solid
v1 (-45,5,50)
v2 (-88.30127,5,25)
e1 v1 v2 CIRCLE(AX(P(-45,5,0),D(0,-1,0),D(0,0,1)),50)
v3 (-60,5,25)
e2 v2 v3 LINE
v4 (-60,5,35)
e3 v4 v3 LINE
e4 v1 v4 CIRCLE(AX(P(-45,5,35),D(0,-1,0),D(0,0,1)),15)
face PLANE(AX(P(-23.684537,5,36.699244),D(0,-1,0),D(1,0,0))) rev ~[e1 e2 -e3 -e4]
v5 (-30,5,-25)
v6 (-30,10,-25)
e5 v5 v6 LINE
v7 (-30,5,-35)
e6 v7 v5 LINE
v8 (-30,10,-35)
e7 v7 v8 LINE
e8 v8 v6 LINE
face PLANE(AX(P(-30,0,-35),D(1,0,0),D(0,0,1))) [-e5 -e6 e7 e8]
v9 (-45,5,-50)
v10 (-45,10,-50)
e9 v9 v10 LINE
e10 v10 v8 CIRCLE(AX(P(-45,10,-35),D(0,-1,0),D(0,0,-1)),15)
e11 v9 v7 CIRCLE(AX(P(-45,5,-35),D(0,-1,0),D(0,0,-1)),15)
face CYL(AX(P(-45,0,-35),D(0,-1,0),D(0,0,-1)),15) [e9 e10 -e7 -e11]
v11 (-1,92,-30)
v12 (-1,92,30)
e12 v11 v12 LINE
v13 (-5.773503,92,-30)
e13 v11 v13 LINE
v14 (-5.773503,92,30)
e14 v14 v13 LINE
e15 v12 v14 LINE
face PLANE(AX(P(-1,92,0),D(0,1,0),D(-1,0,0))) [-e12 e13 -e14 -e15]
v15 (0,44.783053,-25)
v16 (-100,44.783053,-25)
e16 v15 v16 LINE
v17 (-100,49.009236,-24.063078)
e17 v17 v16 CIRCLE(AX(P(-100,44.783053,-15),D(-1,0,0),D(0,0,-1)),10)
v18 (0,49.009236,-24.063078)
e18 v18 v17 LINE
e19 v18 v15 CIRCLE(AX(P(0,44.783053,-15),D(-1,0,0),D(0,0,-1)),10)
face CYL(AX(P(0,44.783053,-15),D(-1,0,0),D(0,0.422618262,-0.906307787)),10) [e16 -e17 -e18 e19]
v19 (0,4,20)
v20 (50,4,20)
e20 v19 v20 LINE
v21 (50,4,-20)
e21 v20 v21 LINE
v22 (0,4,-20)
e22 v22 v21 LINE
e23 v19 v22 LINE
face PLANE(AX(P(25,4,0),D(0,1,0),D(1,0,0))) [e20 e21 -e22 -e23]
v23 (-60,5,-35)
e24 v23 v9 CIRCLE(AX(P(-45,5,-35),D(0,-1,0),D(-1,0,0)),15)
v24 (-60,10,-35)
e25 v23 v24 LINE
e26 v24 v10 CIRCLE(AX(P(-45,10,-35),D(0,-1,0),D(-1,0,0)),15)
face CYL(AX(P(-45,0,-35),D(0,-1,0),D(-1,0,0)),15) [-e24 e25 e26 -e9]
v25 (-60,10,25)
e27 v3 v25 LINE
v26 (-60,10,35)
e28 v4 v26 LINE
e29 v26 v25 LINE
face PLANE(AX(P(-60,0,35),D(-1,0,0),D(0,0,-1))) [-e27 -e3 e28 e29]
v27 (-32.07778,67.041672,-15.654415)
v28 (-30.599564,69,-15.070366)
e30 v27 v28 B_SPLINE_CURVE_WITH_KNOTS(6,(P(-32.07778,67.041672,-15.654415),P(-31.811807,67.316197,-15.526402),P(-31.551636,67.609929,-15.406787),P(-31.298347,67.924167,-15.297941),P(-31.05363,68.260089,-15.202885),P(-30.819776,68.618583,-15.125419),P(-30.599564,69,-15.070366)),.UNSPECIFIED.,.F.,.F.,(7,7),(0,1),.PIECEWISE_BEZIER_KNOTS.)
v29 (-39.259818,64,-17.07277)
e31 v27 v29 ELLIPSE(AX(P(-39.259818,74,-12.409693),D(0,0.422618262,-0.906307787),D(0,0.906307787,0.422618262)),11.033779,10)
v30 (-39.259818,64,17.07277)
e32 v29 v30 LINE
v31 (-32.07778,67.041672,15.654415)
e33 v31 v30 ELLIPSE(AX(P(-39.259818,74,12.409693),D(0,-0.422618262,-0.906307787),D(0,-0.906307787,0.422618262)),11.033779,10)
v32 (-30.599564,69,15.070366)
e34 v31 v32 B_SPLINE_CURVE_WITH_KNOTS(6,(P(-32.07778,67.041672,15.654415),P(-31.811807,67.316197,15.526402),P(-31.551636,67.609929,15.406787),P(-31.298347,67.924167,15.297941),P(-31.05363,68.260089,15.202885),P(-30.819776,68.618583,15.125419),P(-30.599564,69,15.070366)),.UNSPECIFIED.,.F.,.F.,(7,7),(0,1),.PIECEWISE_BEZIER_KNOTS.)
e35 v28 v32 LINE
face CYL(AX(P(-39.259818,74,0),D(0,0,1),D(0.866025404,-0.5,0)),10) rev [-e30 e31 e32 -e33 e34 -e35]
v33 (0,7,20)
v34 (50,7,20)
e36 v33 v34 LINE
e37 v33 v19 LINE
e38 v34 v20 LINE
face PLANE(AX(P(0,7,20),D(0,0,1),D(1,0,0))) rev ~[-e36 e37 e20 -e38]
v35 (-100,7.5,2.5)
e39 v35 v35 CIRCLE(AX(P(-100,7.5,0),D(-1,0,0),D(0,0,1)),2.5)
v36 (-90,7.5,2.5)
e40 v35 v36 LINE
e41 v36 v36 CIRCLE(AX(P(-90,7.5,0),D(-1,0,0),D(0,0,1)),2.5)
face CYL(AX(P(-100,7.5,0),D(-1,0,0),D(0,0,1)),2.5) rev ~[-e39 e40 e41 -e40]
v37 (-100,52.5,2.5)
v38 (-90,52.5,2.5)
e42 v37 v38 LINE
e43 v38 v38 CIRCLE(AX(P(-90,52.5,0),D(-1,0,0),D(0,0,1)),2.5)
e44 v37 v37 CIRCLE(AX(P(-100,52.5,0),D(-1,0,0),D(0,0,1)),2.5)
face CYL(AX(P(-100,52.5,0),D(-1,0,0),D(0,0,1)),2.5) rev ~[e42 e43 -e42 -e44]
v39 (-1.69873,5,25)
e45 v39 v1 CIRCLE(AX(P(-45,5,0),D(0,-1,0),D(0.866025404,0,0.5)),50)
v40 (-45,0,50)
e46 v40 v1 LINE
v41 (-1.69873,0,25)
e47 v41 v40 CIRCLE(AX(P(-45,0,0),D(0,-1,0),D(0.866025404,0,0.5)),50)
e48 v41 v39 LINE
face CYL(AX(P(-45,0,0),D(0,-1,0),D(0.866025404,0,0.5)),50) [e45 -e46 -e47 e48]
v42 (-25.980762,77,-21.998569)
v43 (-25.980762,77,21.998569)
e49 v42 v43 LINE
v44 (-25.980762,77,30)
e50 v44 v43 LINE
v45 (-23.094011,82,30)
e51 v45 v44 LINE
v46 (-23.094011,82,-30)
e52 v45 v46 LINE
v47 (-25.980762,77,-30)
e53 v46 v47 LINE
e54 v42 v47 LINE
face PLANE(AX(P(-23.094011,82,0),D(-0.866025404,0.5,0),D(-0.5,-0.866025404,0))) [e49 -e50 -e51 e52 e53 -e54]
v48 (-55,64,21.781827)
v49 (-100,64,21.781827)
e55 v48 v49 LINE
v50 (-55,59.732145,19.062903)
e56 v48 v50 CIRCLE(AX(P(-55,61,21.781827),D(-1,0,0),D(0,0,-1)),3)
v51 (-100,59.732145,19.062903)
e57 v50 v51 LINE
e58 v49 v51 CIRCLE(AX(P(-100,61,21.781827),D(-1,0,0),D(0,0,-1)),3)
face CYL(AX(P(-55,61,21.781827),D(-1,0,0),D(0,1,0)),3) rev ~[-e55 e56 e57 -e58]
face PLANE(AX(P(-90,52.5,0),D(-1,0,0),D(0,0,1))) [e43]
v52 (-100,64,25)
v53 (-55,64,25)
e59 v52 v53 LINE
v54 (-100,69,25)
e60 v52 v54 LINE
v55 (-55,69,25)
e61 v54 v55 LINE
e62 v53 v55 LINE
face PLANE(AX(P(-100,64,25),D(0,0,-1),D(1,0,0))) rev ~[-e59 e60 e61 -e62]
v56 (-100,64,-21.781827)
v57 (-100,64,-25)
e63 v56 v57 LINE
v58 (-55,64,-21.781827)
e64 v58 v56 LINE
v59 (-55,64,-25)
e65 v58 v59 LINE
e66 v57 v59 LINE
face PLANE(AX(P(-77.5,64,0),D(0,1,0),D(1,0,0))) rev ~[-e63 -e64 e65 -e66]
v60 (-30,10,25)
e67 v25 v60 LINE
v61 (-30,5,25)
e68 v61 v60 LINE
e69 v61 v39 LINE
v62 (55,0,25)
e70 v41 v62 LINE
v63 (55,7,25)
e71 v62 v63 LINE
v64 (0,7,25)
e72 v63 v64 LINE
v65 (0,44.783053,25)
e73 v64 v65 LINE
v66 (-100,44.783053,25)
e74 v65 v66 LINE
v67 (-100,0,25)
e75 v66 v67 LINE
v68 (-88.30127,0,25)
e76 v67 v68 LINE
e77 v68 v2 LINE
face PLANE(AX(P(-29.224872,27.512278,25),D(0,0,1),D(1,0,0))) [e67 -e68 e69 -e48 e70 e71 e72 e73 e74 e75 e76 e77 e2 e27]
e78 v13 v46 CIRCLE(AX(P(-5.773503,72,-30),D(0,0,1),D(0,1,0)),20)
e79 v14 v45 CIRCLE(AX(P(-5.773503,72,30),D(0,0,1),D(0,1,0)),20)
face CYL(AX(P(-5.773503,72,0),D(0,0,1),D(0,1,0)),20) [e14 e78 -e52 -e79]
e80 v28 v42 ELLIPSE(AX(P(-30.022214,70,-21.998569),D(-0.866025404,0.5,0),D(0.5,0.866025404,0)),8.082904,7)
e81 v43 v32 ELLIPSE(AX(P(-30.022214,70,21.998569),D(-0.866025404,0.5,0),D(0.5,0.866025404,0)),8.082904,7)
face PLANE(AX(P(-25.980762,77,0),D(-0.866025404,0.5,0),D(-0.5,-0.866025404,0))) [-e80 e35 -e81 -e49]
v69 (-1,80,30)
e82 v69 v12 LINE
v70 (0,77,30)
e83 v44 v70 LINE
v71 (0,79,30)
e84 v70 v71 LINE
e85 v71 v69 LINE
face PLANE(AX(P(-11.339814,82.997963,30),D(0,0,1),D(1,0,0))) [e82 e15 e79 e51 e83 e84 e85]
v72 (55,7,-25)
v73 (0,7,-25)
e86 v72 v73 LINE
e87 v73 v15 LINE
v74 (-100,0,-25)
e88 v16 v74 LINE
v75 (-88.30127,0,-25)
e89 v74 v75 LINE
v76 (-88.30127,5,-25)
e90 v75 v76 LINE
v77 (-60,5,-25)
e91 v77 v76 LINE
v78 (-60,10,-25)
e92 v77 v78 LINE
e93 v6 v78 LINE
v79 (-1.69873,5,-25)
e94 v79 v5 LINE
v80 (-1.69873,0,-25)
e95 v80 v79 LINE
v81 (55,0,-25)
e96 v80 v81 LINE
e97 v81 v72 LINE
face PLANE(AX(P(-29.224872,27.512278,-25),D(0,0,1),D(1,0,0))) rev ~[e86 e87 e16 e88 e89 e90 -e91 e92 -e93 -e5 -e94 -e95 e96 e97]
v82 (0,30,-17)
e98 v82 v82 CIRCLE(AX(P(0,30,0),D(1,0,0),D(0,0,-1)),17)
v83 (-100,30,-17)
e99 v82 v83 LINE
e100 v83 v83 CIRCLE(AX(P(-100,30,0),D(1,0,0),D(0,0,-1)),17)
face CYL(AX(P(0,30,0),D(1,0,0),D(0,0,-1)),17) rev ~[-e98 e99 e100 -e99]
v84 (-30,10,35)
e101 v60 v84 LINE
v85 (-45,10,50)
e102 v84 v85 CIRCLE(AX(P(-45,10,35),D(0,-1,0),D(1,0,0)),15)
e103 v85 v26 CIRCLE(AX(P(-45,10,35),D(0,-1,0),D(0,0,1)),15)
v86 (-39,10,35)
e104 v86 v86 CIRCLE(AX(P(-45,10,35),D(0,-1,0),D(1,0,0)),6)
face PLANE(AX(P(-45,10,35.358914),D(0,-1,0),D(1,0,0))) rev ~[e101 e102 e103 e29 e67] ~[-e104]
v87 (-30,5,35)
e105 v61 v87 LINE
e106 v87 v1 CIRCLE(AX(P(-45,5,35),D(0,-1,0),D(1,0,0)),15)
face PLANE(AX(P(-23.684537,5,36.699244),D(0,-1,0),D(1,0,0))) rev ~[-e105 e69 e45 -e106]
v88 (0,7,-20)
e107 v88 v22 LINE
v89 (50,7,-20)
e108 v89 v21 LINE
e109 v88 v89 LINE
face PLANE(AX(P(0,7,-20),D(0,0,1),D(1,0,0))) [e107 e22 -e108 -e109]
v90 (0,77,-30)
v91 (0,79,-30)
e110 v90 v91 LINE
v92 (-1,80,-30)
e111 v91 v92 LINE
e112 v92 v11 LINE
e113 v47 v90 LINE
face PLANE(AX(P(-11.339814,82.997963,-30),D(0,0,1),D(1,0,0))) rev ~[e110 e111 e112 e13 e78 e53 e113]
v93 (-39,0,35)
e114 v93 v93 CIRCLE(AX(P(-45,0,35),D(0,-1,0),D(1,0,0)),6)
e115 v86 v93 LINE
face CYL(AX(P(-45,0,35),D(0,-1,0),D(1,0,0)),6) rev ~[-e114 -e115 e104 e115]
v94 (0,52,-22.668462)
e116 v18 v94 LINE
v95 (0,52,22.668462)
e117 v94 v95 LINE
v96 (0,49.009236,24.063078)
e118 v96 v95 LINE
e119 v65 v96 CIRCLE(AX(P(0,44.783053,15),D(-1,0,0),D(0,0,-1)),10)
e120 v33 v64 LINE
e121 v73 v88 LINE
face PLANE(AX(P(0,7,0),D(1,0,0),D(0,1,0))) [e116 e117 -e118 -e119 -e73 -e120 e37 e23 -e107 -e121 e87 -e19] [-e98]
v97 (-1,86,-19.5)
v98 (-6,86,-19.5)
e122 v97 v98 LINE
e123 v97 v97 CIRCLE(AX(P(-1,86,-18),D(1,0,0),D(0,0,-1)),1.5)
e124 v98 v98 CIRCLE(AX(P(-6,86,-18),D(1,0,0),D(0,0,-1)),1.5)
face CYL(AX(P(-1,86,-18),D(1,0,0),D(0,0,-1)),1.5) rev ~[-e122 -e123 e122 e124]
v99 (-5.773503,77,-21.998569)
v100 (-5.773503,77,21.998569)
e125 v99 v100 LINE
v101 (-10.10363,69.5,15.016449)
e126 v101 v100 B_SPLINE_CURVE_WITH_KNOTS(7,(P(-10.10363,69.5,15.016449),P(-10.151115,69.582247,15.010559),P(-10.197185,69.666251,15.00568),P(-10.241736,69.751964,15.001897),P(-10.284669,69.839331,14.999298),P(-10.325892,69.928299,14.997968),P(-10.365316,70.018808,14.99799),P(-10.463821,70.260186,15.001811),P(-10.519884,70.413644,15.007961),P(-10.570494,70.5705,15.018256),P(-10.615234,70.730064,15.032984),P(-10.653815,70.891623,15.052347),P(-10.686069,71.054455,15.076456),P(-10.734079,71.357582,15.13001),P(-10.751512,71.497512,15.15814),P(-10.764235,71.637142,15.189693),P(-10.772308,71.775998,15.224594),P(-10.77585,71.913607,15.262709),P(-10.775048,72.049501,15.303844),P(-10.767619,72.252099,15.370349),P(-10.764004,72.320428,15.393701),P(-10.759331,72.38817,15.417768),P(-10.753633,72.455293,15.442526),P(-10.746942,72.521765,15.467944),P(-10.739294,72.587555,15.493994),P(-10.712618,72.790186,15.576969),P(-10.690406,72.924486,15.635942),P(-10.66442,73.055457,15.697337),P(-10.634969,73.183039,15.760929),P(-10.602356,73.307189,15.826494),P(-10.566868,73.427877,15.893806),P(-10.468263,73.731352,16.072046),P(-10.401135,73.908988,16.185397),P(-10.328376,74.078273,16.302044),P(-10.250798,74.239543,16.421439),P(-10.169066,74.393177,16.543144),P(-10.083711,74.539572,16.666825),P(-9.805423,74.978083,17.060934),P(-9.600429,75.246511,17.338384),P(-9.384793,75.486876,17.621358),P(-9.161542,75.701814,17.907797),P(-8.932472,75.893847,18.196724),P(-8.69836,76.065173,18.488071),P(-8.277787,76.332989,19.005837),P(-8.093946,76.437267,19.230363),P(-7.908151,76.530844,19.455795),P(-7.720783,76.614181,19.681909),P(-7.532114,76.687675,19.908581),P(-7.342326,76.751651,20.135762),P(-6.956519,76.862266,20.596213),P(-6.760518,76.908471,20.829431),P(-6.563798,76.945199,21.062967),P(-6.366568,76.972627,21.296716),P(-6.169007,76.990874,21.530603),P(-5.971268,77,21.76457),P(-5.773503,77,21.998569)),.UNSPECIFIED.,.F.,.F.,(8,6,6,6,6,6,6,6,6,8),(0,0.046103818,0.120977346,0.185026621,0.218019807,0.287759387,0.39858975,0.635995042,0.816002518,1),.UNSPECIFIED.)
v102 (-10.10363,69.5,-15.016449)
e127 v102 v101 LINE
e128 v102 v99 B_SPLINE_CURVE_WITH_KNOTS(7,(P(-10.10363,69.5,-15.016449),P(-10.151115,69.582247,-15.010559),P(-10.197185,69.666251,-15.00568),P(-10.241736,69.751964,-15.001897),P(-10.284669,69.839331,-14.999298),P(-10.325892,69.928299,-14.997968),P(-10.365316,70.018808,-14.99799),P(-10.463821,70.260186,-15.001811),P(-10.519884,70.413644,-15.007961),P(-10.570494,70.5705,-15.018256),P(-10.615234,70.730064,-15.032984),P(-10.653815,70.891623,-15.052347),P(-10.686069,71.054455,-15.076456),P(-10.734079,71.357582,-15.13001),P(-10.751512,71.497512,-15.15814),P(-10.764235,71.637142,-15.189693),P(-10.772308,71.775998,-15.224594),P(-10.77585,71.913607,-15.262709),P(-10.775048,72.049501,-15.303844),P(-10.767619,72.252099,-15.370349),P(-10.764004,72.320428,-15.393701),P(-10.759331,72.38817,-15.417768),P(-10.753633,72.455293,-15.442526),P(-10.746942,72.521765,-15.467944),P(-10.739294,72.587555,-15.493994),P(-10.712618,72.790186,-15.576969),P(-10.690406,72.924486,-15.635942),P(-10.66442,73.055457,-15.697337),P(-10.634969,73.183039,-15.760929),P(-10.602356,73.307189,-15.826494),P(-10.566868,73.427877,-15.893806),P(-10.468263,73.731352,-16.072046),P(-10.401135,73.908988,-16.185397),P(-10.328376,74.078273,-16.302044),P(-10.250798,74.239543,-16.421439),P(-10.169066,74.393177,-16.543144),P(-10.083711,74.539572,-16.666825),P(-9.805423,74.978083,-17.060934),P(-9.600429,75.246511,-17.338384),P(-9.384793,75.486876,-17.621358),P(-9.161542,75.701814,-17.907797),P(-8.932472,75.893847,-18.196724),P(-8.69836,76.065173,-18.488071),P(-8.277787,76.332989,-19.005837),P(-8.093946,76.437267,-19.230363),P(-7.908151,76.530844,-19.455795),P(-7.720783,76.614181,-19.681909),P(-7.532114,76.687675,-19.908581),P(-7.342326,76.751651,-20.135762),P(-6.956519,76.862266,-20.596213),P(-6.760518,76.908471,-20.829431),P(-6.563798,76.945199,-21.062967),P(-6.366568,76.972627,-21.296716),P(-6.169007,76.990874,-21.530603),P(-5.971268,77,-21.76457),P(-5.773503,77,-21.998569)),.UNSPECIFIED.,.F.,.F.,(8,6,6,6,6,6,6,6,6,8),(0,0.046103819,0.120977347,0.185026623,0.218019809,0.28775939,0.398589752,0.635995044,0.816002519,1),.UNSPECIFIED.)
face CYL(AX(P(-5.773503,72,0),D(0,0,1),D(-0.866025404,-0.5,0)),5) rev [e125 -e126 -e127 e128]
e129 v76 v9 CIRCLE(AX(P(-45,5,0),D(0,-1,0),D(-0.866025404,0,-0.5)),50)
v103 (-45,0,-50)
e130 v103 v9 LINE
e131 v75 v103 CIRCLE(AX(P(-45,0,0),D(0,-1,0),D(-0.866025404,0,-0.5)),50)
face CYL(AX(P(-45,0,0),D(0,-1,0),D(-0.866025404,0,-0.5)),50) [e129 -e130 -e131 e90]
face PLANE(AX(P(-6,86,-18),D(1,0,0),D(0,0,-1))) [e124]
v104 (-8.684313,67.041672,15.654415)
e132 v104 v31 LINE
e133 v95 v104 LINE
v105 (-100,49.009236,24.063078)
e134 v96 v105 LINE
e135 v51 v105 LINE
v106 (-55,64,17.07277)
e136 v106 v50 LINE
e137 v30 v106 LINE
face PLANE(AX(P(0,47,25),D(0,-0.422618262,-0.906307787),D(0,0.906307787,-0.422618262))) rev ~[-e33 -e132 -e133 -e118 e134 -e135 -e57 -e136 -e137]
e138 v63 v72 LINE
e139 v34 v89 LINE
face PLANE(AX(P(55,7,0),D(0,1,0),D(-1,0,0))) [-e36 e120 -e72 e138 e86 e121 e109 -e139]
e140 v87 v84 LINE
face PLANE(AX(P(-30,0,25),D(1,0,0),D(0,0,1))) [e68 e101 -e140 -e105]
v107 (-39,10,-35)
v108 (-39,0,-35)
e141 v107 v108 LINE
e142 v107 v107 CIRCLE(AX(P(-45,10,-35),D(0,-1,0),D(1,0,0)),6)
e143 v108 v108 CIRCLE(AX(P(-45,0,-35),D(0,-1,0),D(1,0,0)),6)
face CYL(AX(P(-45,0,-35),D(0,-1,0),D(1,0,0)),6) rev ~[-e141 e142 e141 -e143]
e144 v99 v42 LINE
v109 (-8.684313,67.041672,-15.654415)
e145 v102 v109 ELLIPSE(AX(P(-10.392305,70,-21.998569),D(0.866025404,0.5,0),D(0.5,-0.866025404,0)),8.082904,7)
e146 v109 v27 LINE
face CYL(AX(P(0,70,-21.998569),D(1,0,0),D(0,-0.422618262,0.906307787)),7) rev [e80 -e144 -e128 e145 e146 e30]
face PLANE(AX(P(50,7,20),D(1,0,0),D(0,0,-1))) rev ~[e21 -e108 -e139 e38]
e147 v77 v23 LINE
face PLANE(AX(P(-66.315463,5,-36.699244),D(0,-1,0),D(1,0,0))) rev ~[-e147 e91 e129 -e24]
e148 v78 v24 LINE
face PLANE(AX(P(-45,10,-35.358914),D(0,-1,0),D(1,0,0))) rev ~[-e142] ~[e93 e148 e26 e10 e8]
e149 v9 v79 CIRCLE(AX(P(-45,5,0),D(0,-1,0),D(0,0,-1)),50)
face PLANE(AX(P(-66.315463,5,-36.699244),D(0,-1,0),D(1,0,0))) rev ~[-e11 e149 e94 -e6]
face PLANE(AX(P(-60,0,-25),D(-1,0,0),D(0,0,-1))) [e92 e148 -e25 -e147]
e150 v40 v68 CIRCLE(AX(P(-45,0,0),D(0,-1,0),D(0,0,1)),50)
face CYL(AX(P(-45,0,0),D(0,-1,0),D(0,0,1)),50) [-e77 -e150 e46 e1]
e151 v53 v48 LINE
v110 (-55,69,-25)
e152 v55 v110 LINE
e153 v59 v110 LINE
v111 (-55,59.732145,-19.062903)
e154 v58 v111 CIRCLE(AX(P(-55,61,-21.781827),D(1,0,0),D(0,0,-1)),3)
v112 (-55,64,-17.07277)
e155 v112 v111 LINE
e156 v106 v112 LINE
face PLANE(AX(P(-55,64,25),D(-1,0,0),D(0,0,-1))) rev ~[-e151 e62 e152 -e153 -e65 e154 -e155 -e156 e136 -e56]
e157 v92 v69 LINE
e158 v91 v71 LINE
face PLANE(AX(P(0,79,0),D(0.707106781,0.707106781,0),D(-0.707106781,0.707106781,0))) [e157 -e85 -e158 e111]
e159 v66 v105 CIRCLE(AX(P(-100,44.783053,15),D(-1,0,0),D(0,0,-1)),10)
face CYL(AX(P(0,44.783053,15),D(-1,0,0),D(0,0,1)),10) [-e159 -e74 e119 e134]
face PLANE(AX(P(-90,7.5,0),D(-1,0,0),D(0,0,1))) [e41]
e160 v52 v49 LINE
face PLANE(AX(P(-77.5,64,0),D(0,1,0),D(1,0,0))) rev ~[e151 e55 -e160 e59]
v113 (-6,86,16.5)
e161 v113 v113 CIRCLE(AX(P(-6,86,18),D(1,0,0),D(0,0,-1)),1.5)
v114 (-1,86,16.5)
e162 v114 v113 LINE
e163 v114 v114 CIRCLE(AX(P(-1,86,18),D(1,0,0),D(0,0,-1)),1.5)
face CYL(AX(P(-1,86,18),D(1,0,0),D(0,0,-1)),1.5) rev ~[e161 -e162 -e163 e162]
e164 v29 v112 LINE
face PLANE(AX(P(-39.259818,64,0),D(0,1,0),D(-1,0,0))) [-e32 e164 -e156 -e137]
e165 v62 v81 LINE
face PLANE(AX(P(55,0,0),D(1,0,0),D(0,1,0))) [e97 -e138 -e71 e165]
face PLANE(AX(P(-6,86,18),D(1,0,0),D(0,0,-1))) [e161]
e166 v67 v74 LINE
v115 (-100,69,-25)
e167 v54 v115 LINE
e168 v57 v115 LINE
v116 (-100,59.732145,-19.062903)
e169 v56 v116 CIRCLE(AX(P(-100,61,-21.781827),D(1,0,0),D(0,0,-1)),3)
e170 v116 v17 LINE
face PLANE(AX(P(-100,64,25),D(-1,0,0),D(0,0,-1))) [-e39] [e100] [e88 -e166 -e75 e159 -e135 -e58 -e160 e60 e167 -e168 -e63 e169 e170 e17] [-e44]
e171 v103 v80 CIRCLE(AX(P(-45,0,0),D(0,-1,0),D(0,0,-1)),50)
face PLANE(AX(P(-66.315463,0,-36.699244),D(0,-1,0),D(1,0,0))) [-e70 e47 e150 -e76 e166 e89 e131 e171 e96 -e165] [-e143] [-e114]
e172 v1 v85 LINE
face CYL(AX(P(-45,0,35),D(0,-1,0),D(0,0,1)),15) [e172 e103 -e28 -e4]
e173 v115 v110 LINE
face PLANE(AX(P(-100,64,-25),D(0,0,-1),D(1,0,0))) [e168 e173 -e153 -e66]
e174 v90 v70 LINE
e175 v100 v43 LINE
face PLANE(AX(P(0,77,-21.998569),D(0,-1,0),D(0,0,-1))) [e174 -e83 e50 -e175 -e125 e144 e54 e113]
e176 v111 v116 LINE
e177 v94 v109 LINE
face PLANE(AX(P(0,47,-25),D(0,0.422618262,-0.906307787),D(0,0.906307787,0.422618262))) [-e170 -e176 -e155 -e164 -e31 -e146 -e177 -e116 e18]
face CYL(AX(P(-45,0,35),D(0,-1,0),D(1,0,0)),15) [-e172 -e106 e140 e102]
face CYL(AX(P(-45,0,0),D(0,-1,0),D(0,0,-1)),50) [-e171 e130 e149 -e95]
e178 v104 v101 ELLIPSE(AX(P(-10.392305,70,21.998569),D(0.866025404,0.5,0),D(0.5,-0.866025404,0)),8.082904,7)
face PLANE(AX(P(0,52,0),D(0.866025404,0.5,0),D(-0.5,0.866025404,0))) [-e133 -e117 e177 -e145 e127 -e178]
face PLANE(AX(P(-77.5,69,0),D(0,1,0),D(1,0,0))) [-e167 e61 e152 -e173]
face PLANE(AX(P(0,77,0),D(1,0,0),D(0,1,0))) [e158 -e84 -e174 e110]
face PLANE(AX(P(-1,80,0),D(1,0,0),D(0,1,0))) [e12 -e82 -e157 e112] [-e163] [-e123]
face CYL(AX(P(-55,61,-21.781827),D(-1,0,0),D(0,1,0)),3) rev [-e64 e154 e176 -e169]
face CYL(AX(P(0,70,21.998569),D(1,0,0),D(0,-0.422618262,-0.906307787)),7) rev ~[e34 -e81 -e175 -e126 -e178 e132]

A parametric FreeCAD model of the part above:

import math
import FreeCAD as App
import Part
import Sketcher
Q = App.Units.Quantity


def edges_at(feature, points):
    """Names of the edges that pass closest to the given points."""
    edges = feature.Shape.Edges
    near = lambda p: min(range(len(edges)), key=lambda i: edges[i].distToShape(Part.Vertex(*p))[0])
    return sorted({f"Edge{near(p) + 1}" for p in points})

doc = App.newDocument("Part")
body = doc.addObject("PartDesign::Body", "Body")

# Sketch on XY plane
sketch1 = body.newObject("Sketcher::SketchObject", "Sketch")
sketch1.AttachmentSupport = (doc.getObject("XY_Plane"), [""])
sketch1.MapMode = "FlatFace"
sketch1.addGeometry([
    Part.LineSegment(App.Vector(55, 7, 0), App.Vector(0, 7, 0)),  # 0
    Part.LineSegment(App.Vector(0, 7, 0), App.Vector(0, 52, 0)),  # 1
    Part.LineSegment(App.Vector(0, 52, 0), App.Vector(-10.10363, 69.5, 0)),  # 2
    Part.ArcOfCircle(Part.Circle(App.Vector(-5.773503, 72, 0), App.Vector(0, 0, 1), 5), math.radians(90), math.radians(210)),  # 3
    Part.LineSegment(App.Vector(-5.773503, 77, 0), App.Vector(0, 77, 0)),  # 4
    Part.LineSegment(App.Vector(0, 77, 0), App.Vector(0, 79, 0)),  # 5
    Part.LineSegment(App.Vector(0, 79, 0), App.Vector(-1, 80, 0)),  # 6
    Part.LineSegment(App.Vector(-1, 80, 0), App.Vector(-1, 92, 0)),  # 7
    Part.LineSegment(App.Vector(-1, 92, 0), App.Vector(-5.773503, 92, 0)),  # 8
    Part.ArcOfCircle(Part.Circle(App.Vector(-5.773503, 72, 0), App.Vector(0, 0, 1), 20), math.radians(90), math.radians(150)),  # 9
    Part.LineSegment(App.Vector(-23.094011, 82, 0), App.Vector(-25.980762, 77, 0)),  # 10
    Part.LineSegment(App.Vector(-25.980762, 77, 0), App.Vector(-30.599564, 69, 0)),  # 11
    Part.ArcOfCircle(Part.Circle(App.Vector(-39.259818, 74, 0), App.Vector(0, 0, 1), 10), math.radians(-90), math.radians(-30)),  # 12
    Part.LineSegment(App.Vector(-39.259818, 64, 0), App.Vector(-100, 64, 0)),  # 13
    Part.LineSegment(App.Vector(-100, 64, 0), App.Vector(-100, 0, 0)),  # 14
    Part.LineSegment(App.Vector(-100, 0, 0), App.Vector(55, 0, 0)),  # 15
    Part.LineSegment(App.Vector(55, 0, 0), App.Vector(55, 7, 0)),  # 16
], False)
sketch1.addConstraint([
    Sketcher.Constraint("Coincident", 0, 2, 1, 1),
    Sketcher.Constraint("Coincident", 1, 2, 2, 1),
    Sketcher.Constraint("Tangent", 2, 2, 3, 2),
    Sketcher.Constraint("Tangent", 3, 1, 4, 1),
    Sketcher.Constraint("Coincident", 4, 2, 5, 1),
    Sketcher.Constraint("Coincident", 5, 2, 6, 1),
    Sketcher.Constraint("Coincident", 6, 2, 7, 1),
    Sketcher.Constraint("Coincident", 7, 2, 8, 1),
    Sketcher.Constraint("Tangent", 8, 2, 9, 1),
    Sketcher.Constraint("Tangent", 9, 2, 10, 1),
    Sketcher.Constraint("Coincident", 10, 2, 11, 1),
    Sketcher.Constraint("Tangent", 11, 2, 12, 2),
    Sketcher.Constraint("Tangent", 12, 1, 13, 1),
    Sketcher.Constraint("Coincident", 13, 2, 14, 1),
    Sketcher.Constraint("Coincident", 14, 2, 15, 1),
    Sketcher.Constraint("Coincident", 15, 2, 16, 1),
    Sketcher.Constraint("Coincident", 16, 2, 0, 1),
    Sketcher.Constraint("Horizontal", 0),
    Sketcher.Constraint("Vertical", 1),
    Sketcher.Constraint("Horizontal", 4),
    Sketcher.Constraint("Vertical", 5),
    Sketcher.Constraint("Vertical", 7),
    Sketcher.Constraint("Horizontal", 8),
    Sketcher.Constraint("Horizontal", 13),
    Sketcher.Constraint("Vertical", 14),
    Sketcher.Constraint("Horizontal", 15),
    Sketcher.Constraint("Vertical", 16),
    Sketcher.Constraint("Coincident", 9, 3, 3, 3),
    Sketcher.Constraint("PointOnObject", 0, 2, -2),
    Sketcher.Constraint("PointOnObject", 4, 2, -2),
    Sketcher.Constraint("PointOnObject", 14, 2, -1),
    Sketcher.Constraint("Parallel", 10, 11),
    Sketcher.Constraint("Horizontal", 4, 2, 10, 2),
    Sketcher.Constraint("Radius", 3, 5.0),
    Sketcher.Constraint("Radius", 9, 20.0),
    Sketcher.Constraint("Radius", 12, 10.0),
    Sketcher.Constraint("DistanceX", 0, 2, 0, 1, 55.0),
    Sketcher.Constraint("DistanceX", 15, 1, 15, 2, 155.0),
    Sketcher.Constraint("DistanceY", 1, 1, 1, 2, 45.0),
    Sketcher.Constraint("DistanceY", 5, 1, 5, 2, 2.0),
    Sketcher.Constraint("DistanceY", 7, 1, 7, 2, 12.0),
    Sketcher.Constraint("DistanceY", 14, 2, 14, 1, 64.0),
    Sketcher.Constraint("DistanceY", 16, 1, 16, 2, 7.0),
    Sketcher.Constraint("Angle", 2, Q("120 deg")),
    Sketcher.Constraint("Angle", 6, Q("135 deg")),
    Sketcher.Constraint("Angle", 10, Q("-120 deg")),
    Sketcher.Constraint("DistanceY", -1, 1, 3, 3, 72.0),
])
pad1 = body.newObject("PartDesign::Pad", "Pad")
pad1.Profile = sketch1
pad1.Length = 50
pad1.Midplane = True

# Sketch on XZ plane
sketch2 = body.newObject("Sketcher::SketchObject", "Sketch001")
sketch2.AttachmentSupport = (doc.getObject("XZ_Plane"), [""])
sketch2.MapMode = "FlatFace"
sketch2.AttachmentOffset = App.Placement(App.Vector(0, 0, -7), App.Rotation())
sketch2.addGeometry([
    Part.LineSegment(App.Vector(0, -20, 0), App.Vector(0, 20, 0)),
    Part.LineSegment(App.Vector(0, 20, 0), App.Vector(50, 20, 0)),
    Part.LineSegment(App.Vector(50, 20, 0), App.Vector(50, -20, 0)),
    Part.LineSegment(App.Vector(50, -20, 0), App.Vector(0, -20, 0)),
], False)
sketch2.addConstraint([
    Sketcher.Constraint("Coincident", 0, 2, 1, 1),
    Sketcher.Constraint("Coincident", 1, 2, 2, 1),
    Sketcher.Constraint("Coincident", 2, 2, 3, 1),
    Sketcher.Constraint("Coincident", 3, 2, 0, 1),
    Sketcher.Constraint("Vertical", 0),
    Sketcher.Constraint("Horizontal", 1),
    Sketcher.Constraint("Vertical", 2),
    Sketcher.Constraint("Horizontal", 3),
    Sketcher.Constraint("Symmetric", 0, 2, 3, 2, -1, 1),
    Sketcher.Constraint("DistanceX", 1, 1, 1, 2, 50.0),
    Sketcher.Constraint("DistanceY", 0, 1, 0, 2, 40.0),
])
pocket1 = body.newObject("PartDesign::Pocket", "Pocket")
pocket1.Profile = sketch2
pocket1.Length = 3
pocket1.Reversed = True

# Sketch on XY plane
sketch3 = body.newObject("Sketcher::SketchObject", "Sketch002")
sketch3.AttachmentSupport = (doc.getObject("XY_Plane"), [""])
sketch3.MapMode = "FlatFace"
sketch3.addGeometry([
    Part.LineSegment(App.Vector(-25.980762, 77, 0), App.Vector(0, 77, 0)),  # 0
    Part.LineSegment(App.Vector(0, 77, 0), App.Vector(0, 79, 0)),  # 1
    Part.LineSegment(App.Vector(0, 79, 0), App.Vector(-1, 80, 0)),  # 2
    Part.LineSegment(App.Vector(-1, 80, 0), App.Vector(-1, 92, 0)),  # 3
    Part.LineSegment(App.Vector(-1, 92, 0), App.Vector(-5.773503, 92, 0)),  # 4
    Part.ArcOfCircle(Part.Circle(App.Vector(-5.773503, 72, 0), App.Vector(0, 0, 1), 20), math.radians(90), math.radians(150)),  # 5
    Part.LineSegment(App.Vector(-23.094011, 82, 0), App.Vector(-25.980762, 77, 0)),  # 6
], False)
sketch3.addConstraint([
    Sketcher.Constraint("Coincident", 0, 2, 1, 1),
    Sketcher.Constraint("Coincident", 1, 2, 2, 1),
    Sketcher.Constraint("Coincident", 2, 2, 3, 1),
    Sketcher.Constraint("Coincident", 3, 2, 4, 1),
    Sketcher.Constraint("Tangent", 4, 2, 5, 1),
    Sketcher.Constraint("Tangent", 5, 2, 6, 1),
    Sketcher.Constraint("Coincident", 6, 2, 0, 1),
    Sketcher.Constraint("Horizontal", 0),
    Sketcher.Constraint("Vertical", 1),
    Sketcher.Constraint("Vertical", 3),
    Sketcher.Constraint("Horizontal", 4),
    Sketcher.Constraint("PointOnObject", 0, 2, -2),
    Sketcher.Constraint("Radius", 5, 20.0),
    Sketcher.Constraint("DistanceY", 1, 1, 1, 2, 2.0),
    Sketcher.Constraint("DistanceY", 3, 1, 3, 2, 12.0),
    Sketcher.Constraint("Angle", 2, Q("135 deg")),
    Sketcher.Constraint("Angle", 6, Q("-120 deg")),
    Sketcher.Constraint("DistanceY", -1, 1, 5, 3, 72.0),
    Sketcher.Constraint("DistanceY", -1, 1, 0, 2, 77.0),
    Sketcher.Constraint("DistanceX", 0, 1, 0, 2, 25.980762),
])
pad2 = body.newObject("PartDesign::Pad", "Pad001")
pad2.Profile = sketch3
pad2.Length = 60
pad2.Midplane = True

# Sketch on YZ plane
sketch4 = body.newObject("Sketcher::SketchObject", "Sketch003")
sketch4.AttachmentSupport = (doc.getObject("YZ_Plane"), [""])
sketch4.MapMode = "FlatFace"
sketch4.AttachmentOffset = App.Placement(App.Vector(0, 0, -1), App.Rotation())
sketch4.addGeometry([
    Part.Circle(App.Vector(86, 18, 0), App.Vector(0, 0, 1), 1.5),
    Part.Circle(App.Vector(86, -18, 0), App.Vector(0, 0, 1), 1.5),
], False)
sketch4.addConstraint([
    Sketcher.Constraint("Equal", 0, 1),
    Sketcher.Constraint("Symmetric", 0, 3, 1, 3, -1),
    Sketcher.Constraint("Diameter", 0, 3.0),
    Sketcher.Constraint("DistanceX", -1, 1, 0, 3, 86.0),
    Sketcher.Constraint("DistanceY", -1, 1, 0, 3, 18.0),
])
pocket2 = body.newObject("PartDesign::Pocket", "Pocket001")
pocket2.Profile = sketch4
pocket2.Length = 5

# Sketch on YZ plane
sketch5 = body.newObject("Sketcher::SketchObject", "Sketch004")
sketch5.AttachmentSupport = (doc.getObject("YZ_Plane"), [""])
sketch5.MapMode = "FlatFace"
sketch5.addGeometry(Part.Circle(App.Vector(30, 0, 0), App.Vector(0, 0, 1), 17), False)
sketch5.addConstraint([
    Sketcher.Constraint("PointOnObject", 0, 3, -1),
    Sketcher.Constraint("Diameter", 0, 34.0),
    Sketcher.Constraint("DistanceX", -1, 1, 0, 3, 30.0),
])
pocket3 = body.newObject("PartDesign::Pocket", "Pocket002")
pocket3.Profile = sketch5
pocket3.Type = "ThroughAll"

# Sketch on YZ plane
sketch6 = body.newObject("Sketcher::SketchObject", "Sketch005")
sketch6.AttachmentSupport = (doc.getObject("YZ_Plane"), [""])
sketch6.MapMode = "FlatFace"
sketch6.AttachmentOffset = App.Placement(App.Vector(0, 0, -100), App.Rotation())
sketch6.addGeometry([
    Part.Circle(App.Vector(52.5, 0, 0), App.Vector(0, 0, 1), 2.5),
    Part.Circle(App.Vector(7.5, 0, 0), App.Vector(0, 0, 1), 2.5),
], False)
sketch6.addConstraint([
    Sketcher.Constraint("Equal", 0, 1),
    Sketcher.Constraint("PointOnObject", 0, 3, -1),
    Sketcher.Constraint("PointOnObject", 1, 3, -1),
    Sketcher.Constraint("Diameter", 0, 5.0),
    Sketcher.Constraint("DistanceX", 1, 3, 0, 3, 45.0),
    Sketcher.Constraint("DistanceX", -1, 1, 0, 3, 52.5),
])
pocket4 = body.newObject("PartDesign::Pocket", "Pocket003")
pocket4.Profile = sketch6
pocket4.Length = 10
pocket4.Reversed = True

# Sketch on XZ plane
sketch7 = body.newObject("Sketcher::SketchObject", "Sketch006")
sketch7.AttachmentSupport = (doc.getObject("XZ_Plane"), [""])
sketch7.MapMode = "FlatFace"
sketch7.addGeometry([
    Part.ArcOfCircle(Part.Circle(App.Vector(-45, 0, 0), App.Vector(0, 0, 1), 50), math.radians(-150), math.radians(-90)),  # 0
    Part.ArcOfCircle(Part.Circle(App.Vector(-45, 0, 0), App.Vector(0, 0, 1), 50), math.radians(-90), math.radians(-30)),  # 1
    Part.LineSegment(App.Vector(-1.69873, -25, 0), App.Vector(-88.30127, -25, 0)),  # 2
    Part.Circle(App.Vector(-45, -35, 0), App.Vector(0, 0, 1), 6),  # 3
    Part.ArcOfCircle(Part.Circle(App.Vector(-45, 0, 0), App.Vector(0, 0, 1), 50), math.radians(30), math.radians(90)),  # 4
    Part.ArcOfCircle(Part.Circle(App.Vector(-45, 0, 0), App.Vector(0, 0, 1), 50), math.radians(90), math.radians(150)),  # 5
    Part.LineSegment(App.Vector(-88.30127, 25, 0), App.Vector(-1.69873, 25, 0)),  # 6
    Part.Circle(App.Vector(-45, 35, 0), App.Vector(0, 0, 1), 6),  # 7
], False)
sketch7.addConstraint([
    Sketcher.Constraint("Tangent", 0, 2, 1, 1),
    Sketcher.Constraint("Coincident", 1, 2, 2, 1),
    Sketcher.Constraint("Coincident", 2, 2, 0, 1),
    Sketcher.Constraint("Tangent", 4, 2, 5, 1),
    Sketcher.Constraint("Coincident", 5, 2, 6, 1),
    Sketcher.Constraint("Coincident", 6, 2, 4, 1),
    Sketcher.Constraint("Horizontal", 2),
    Sketcher.Constraint("Horizontal", 6),
    Sketcher.Constraint("Coincident", 4, 3, 0, 3),
    Sketcher.Constraint("Equal", 0, 1),
    Sketcher.Constraint("Equal", 1, 4),
    Sketcher.Constraint("Equal", 4, 5),
    Sketcher.Constraint("Equal", 3, 7),
    Sketcher.Constraint("Symmetric", 3, 3, 7, 3, -1),
    Sketcher.Constraint("Symmetric", 0, 2, 4, 2, -1),
    Sketcher.Constraint("Vertical", 1, 3, 3, 3),
    Sketcher.Constraint("Vertical", 7, 3, 0, 2),
    Sketcher.Constraint("Vertical", 2, 2, 5, 2),
    Sketcher.Constraint("Diameter", 3, 12.0),
    Sketcher.Constraint("Radius", 0, 50.0),
    Sketcher.Constraint("DistanceX", 0, 3, -1, 1, 45.0),
    Sketcher.Constraint("DistanceY", 3, 3, -1, 1, 35.0),
    Sketcher.Constraint("DistanceY", 1, 2, -1, 1, 25.0),
])
pad3 = body.newObject("PartDesign::Pad", "Pad002")
pad3.Profile = sketch7
pad3.Length = 5
pad3.Reversed = True

# Sketch on XZ plane
sketch8 = body.newObject("Sketcher::SketchObject", "Sketch007")
sketch8.AttachmentSupport = (doc.getObject("XZ_Plane"), [""])
sketch8.MapMode = "FlatFace"
sketch8.addGeometry([
    Part.LineSegment(App.Vector(-30, -25, 0), App.Vector(-60, -25, 0)),  # 0
    Part.LineSegment(App.Vector(-60, -25, 0), App.Vector(-60, -35, 0)),  # 1
    Part.ArcOfCircle(Part.Circle(App.Vector(-45, -35, 0), App.Vector(0, 0, 1), 15), math.radians(180), math.radians(270)),  # 2
    Part.ArcOfCircle(Part.Circle(App.Vector(-45, -35, 0), App.Vector(0, 0, 1), 15), math.radians(-90), math.radians(0)),  # 3
    Part.LineSegment(App.Vector(-30, -35, 0), App.Vector(-30, -25, 0)),  # 4
    Part.Circle(App.Vector(-45, -35, 0), App.Vector(0, 0, 1), 6),  # 5
    Part.LineSegment(App.Vector(-60, 35, 0), App.Vector(-60, 25, 0)),  # 6
    Part.LineSegment(App.Vector(-60, 25, 0), App.Vector(-30, 25, 0)),  # 7
    Part.LineSegment(App.Vector(-30, 25, 0), App.Vector(-30, 35, 0)),  # 8
    Part.ArcOfCircle(Part.Circle(App.Vector(-45, 35, 0), App.Vector(0, 0, 1), 15), math.radians(0), math.radians(90)),  # 9
    Part.ArcOfCircle(Part.Circle(App.Vector(-45, 35, 0), App.Vector(0, 0, 1), 15), math.radians(90), math.radians(180)),  # 10
    Part.Circle(App.Vector(-45, 35, 0), App.Vector(0, 0, 1), 6),  # 11
], False)
sketch8.addConstraint([
    Sketcher.Constraint("Coincident", 0, 2, 1, 1),
    Sketcher.Constraint("Tangent", 1, 2, 2, 1),
    Sketcher.Constraint("Tangent", 2, 2, 3, 1),
    Sketcher.Constraint("Tangent", 3, 2, 4, 1),
    Sketcher.Constraint("Coincident", 4, 2, 0, 1),
    Sketcher.Constraint("Coincident", 6, 2, 7, 1),
    Sketcher.Constraint("Coincident", 7, 2, 8, 1),
    Sketcher.Constraint("Tangent", 8, 2, 9, 1),
    Sketcher.Constraint("Tangent", 9, 2, 10, 1),
    Sketcher.Constraint("Tangent", 10, 2, 6, 1),
    Sketcher.Constraint("Horizontal", 0),
    Sketcher.Constraint("Vertical", 1),
    Sketcher.Constraint("Vertical", 4),
    Sketcher.Constraint("Vertical", 6),
    Sketcher.Constraint("Horizontal", 7),
    Sketcher.Constraint("Vertical", 8),
    Sketcher.Constraint("Coincident", 5, 3, 2, 3),
    Sketcher.Constraint("Coincident", 11, 3, 9, 3),
    Sketcher.Constraint("Equal", 2, 3),
    Sketcher.Constraint("Equal", 3, 9),
    Sketcher.Constraint("Equal", 9, 10),
    Sketcher.Constraint("Equal", 5, 11),
    Sketcher.Constraint("Symmetric", 2, 3, 9, 3, -1),
    Sketcher.Constraint("Vertical", 11, 3, 2, 2),
    Sketcher.Constraint("Vertical", 2, 2, 9, 2),
    Sketcher.Constraint("Equal", 4, 6),
    Sketcher.Constraint("Diameter", 5, 12.0),
    Sketcher.Constraint("Radius", 2, 15.0),
    Sketcher.Constraint("DistanceY", 1, 2, 1, 1, 10.0),
    Sketcher.Constraint("DistanceX", 2, 3, -1, 1, 45.0),
    Sketcher.Constraint("DistanceY", 2, 3, -1, 1, 35.0),
])
pad4 = body.newObject("PartDesign::Pad", "Pad003")
pad4.Profile = sketch8
pad4.Length = 10
pad4.Reversed = True

# Sketch on YZ plane
sketch9 = body.newObject("Sketcher::SketchObject", "Sketch008")
sketch9.AttachmentSupport = (doc.getObject("YZ_Plane"), [""])
sketch9.MapMode = "FlatFace"
sketch9.addGeometry([
    Part.LineSegment(App.Vector(67.041672, -15.654415, 0), App.Vector(47, -25, 0)),  # 0
    Part.LineSegment(App.Vector(47, -25, 0), App.Vector(77, -25, 0)),  # 1
    Part.LineSegment(App.Vector(77, -25, 0), App.Vector(77, -21.998569, 0)),  # 2
    Part.ArcOfCircle(Part.Circle(App.Vector(70, -21.998569, 0), App.Vector(0, 0, 1), 7), math.radians(0), math.radians(115)),  # 3
    Part.LineSegment(App.Vector(77, 25, 0), App.Vector(47, 25, 0)),  # 4
    Part.LineSegment(App.Vector(47, 25, 0), App.Vector(67.041672, 15.654415, 0)),  # 5
    Part.ArcOfCircle(Part.Circle(App.Vector(70, 21.998569, 0), App.Vector(0, 0, 1), 7), math.radians(-115), math.radians(0)),  # 6
    Part.LineSegment(App.Vector(77, 21.998569, 0), App.Vector(77, 25, 0)),  # 7
], False)
sketch9.addConstraint([
    Sketcher.Constraint("Coincident", 0, 2, 1, 1),
    Sketcher.Constraint("Coincident", 1, 2, 2, 1),
    Sketcher.Constraint("Tangent", 2, 2, 3, 1),
    Sketcher.Constraint("Tangent", 3, 2, 0, 1),
    Sketcher.Constraint("Coincident", 4, 2, 5, 1),
    Sketcher.Constraint("Tangent", 5, 2, 6, 1),
    Sketcher.Constraint("Tangent", 6, 2, 7, 1),
    Sketcher.Constraint("Coincident", 7, 2, 4, 1),
    Sketcher.Constraint("Horizontal", 1),
    Sketcher.Constraint("Vertical", 2),
    Sketcher.Constraint("Horizontal", 4),
    Sketcher.Constraint("Vertical", 7),
    Sketcher.Constraint("Equal", 3, 6),
    Sketcher.Constraint("Symmetric", 3, 3, 6, 3, -1),
    Sketcher.Constraint("Symmetric", 0, 2, 4, 2, -1),
    Sketcher.Constraint("Radius", 3, 7.0),
    Sketcher.Constraint("DistanceX", 1, 1, 1, 2, 30.0),
    Sketcher.Constraint("Angle", 0, Q("-155 deg")),
    Sketcher.Constraint("DistanceX", -1, 1, 3, 3, 70.0),
    Sketcher.Constraint("DistanceY", 0, 2, -1, 1, 25.0),
])
pocket5 = body.newObject("PartDesign::Pocket", "Pocket004")
pocket5.Profile = sketch9
pocket5.Type = "ThroughAll"

# Sketch on XZ plane
sketch10 = body.newObject("Sketcher::SketchObject", "Sketch009")
sketch10.AttachmentSupport = (doc.getObject("XZ_Plane"), [""])
sketch10.MapMode = "FlatFace"
sketch10.AttachmentOffset = App.Placement(App.Vector(0, 0, -64), App.Rotation())
sketch10.addGeometry([
    Part.LineSegment(App.Vector(-100, -25, 0), App.Vector(-100, 25, 0)),
    Part.LineSegment(App.Vector(-100, 25, 0), App.Vector(-55, 25, 0)),
    Part.LineSegment(App.Vector(-55, 25, 0), App.Vector(-55, -25, 0)),
    Part.LineSegment(App.Vector(-55, -25, 0), App.Vector(-100, -25, 0)),
], False)
sketch10.addConstraint([
    Sketcher.Constraint("Coincident", 0, 2, 1, 1),
    Sketcher.Constraint("Coincident", 1, 2, 2, 1),
    Sketcher.Constraint("Coincident", 2, 2, 3, 1),
    Sketcher.Constraint("Coincident", 3, 2, 0, 1),
    Sketcher.Constraint("Vertical", 0),
    Sketcher.Constraint("Horizontal", 1),
    Sketcher.Constraint("Vertical", 2),
    Sketcher.Constraint("Horizontal", 3),
    Sketcher.Constraint("DistanceX", 1, 1, 1, 2, 45.0),
    Sketcher.Constraint("DistanceY", 0, 1, 0, 2, 50.0),
    Sketcher.Constraint("DistanceX", 0, 2, -1, 1, 100.0),
    Sketcher.Constraint("DistanceY", -1, 1, 0, 2, 25.0),
])
pad5 = body.newObject("PartDesign::Pad", "Pad004")
pad5.Profile = sketch10
pad5.Length = 5
pad5.Reversed = True
doc.recompute()

fillet = body.newObject("PartDesign::Fillet", "Fillet")
fillet.Base = (pad5, edges_at(pad5, [(-77.5, 64, -17.073), (-77.5, 64, 17.073)]))
fillet.Radius = 3
doc.recompute()

fillet2 = body.newObject("PartDesign::Fillet", "Fillet001")
fillet2.Base = (fillet, edges_at(fillet, [(-50, 47, -25), (-50, 47, 25)]))
fillet2.Radius = 10

doc.recompute()
